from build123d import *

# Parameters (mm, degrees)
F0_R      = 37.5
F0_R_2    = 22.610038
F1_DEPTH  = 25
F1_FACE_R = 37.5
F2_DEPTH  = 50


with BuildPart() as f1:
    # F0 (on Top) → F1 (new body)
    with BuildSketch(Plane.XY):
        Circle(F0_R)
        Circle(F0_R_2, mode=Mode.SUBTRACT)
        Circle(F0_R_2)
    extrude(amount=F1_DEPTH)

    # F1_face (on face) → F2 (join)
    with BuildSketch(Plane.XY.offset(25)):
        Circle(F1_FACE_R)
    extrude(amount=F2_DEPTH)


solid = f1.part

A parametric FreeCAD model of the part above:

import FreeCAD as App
import Part
import Sketcher
from FreeCAD import Vector

doc = App.newDocument("Part")
body = doc.addObject("PartDesign::Body", "Body")

# Sketch on XY plane
sketch1 = body.newObject("Sketcher::SketchObject", "Sketch")
sketch1.AttachmentSupport = (doc.getObject("XY_Plane"), [""])
sketch1.MapMode = "FlatFace"
sketch1.addGeometry(Part.Circle(Vector(0, 0, 0), Vector(0, 0, 1), 37.5), False)
sketch1.addConstraint(Sketcher.Constraint("Coincident", 0, 3, -1, 1))
sketch1.addConstraint(Sketcher.Constraint("Diameter", 0, 75.0))
pad1 = body.newObject("PartDesign::Pad", "Pad")
pad1.Profile = sketch1
pad1.Length = 25

# Sketch on XY plane
sketch2 = body.newObject("Sketcher::SketchObject", "Sketch001")
sketch2.AttachmentSupport = (doc.getObject("XY_Plane"), [""])
sketch2.MapMode = "FlatFace"
sketch2.AttachmentOffset = App.Placement(Vector(0, 0, 25), App.Rotation())
sketch2.addGeometry(Part.Circle(Vector(0, 0, 0), Vector(0, 0, 1), 37.5), False)
sketch2.addConstraint(Sketcher.Constraint("Coincident", 0, 3, -1, 1))
sketch2.addConstraint(Sketcher.Constraint("Diameter", 0, 75.0))
pad2 = body.newObject("PartDesign::Pad", "Pad001")
pad2.Profile = sketch2
pad2.Length = 50

doc.recompute()
